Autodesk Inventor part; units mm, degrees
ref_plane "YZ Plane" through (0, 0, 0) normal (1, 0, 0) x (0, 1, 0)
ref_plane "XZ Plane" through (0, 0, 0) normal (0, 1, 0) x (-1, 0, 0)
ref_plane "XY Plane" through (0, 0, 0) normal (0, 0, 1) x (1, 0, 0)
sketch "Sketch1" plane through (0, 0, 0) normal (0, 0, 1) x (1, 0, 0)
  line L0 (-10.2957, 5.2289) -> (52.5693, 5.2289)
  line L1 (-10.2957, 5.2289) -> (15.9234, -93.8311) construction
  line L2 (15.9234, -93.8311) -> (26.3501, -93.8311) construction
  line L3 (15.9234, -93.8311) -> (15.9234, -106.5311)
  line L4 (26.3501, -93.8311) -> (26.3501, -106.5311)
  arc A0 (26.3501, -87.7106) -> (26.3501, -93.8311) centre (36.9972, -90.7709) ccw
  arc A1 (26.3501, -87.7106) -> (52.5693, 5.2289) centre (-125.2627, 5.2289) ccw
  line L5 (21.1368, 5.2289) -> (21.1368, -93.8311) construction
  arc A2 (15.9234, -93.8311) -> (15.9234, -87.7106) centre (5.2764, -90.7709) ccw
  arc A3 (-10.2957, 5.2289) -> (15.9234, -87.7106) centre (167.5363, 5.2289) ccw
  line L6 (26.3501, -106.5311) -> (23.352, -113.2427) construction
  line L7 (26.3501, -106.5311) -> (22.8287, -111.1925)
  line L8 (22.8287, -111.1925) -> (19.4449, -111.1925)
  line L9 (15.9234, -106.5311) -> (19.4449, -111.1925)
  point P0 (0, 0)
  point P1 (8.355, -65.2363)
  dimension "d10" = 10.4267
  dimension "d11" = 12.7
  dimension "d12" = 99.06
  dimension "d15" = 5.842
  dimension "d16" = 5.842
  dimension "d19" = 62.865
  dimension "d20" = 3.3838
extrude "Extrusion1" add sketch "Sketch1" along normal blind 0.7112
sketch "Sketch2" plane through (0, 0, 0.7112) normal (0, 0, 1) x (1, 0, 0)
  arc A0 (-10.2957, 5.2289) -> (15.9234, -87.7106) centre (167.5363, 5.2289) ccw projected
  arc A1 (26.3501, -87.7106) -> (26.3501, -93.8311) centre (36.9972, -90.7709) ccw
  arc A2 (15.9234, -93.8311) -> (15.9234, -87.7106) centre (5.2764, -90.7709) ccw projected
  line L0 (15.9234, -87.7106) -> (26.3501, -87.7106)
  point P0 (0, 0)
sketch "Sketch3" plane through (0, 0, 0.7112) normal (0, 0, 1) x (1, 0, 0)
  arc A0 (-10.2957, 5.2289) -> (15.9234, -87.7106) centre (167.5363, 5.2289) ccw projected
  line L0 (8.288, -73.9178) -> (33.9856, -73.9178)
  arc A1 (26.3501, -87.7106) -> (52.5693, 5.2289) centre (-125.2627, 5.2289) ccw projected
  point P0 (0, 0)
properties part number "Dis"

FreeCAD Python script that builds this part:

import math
import FreeCAD as App
import Part
import Sketcher
from FreeCAD import Vector
Q = App.Units.Quantity

doc = App.newDocument("Part")
body = doc.addObject("PartDesign::Body", "Body")

sketch1 = body.newObject("Sketcher::SketchObject", "Sketch")
sketch1.AttachmentSupport = (doc.getObject("XY_Plane"), [""])
sketch1.MapMode = "FlatFace"
sketch1.addGeometry(Part.LineSegment(Vector(52.5693, 5.2289, 0), Vector(-10.2957, 5.2289, 0)), False)
sketch1.addGeometry(Part.ArcOfCircle(Part.Circle(Vector(167.5363, 5.2289, 0), Vector(0, 0, 1), 177.832), math.radians(180), math.radians(211.508515)), False)
sketch1.addGeometry(Part.ArcOfCircle(Part.Circle(Vector(5.2764, -90.7709, 0), Vector(0, 0, 1), 11.078061), math.radians(-16.035905), math.radians(16.036402)), False)
sketch1.addGeometry(Part.LineSegment(Vector(15.9234, -93.8311, 0), Vector(15.9234, -106.5311, 0)), False)
sketch1.addGeometry(Part.LineSegment(Vector(15.9234, -106.5311, 0), Vector(19.4449, -111.1925, 0)), False)
sketch1.addGeometry(Part.LineSegment(Vector(19.4449, -111.1925, 0), Vector(22.8287, -111.1925, 0)), False)
sketch1.addGeometry(Part.LineSegment(Vector(22.8287, -111.1925, 0), Vector(26.3501, -106.5311, 0)), False)
sketch1.addGeometry(Part.LineSegment(Vector(26.3501, -106.5311, 0), Vector(26.3501, -93.8311, 0)), False)
sketch1.addGeometry(Part.ArcOfCircle(Part.Circle(Vector(36.9972, -90.7709, 0), Vector(0, 0, 1), 11.078185), math.radians(163.963741), math.radians(196.035762)), False)
sketch1.addGeometry(Part.ArcOfCircle(Part.Circle(Vector(-125.263684, 5.229331, 0), Vector(0, 0, 1), 177.832984), math.radians(-31.508484), math.radians(-0.000139)), False)
sketch1.addConstraint(Sketcher.Constraint("Coincident", 0, 2, 1, 1))
sketch1.addConstraint(Sketcher.Constraint("Coincident", 1, 2, 2, 2))
sketch1.addConstraint(Sketcher.Constraint("Coincident", 2, 1, 3, 1))
sketch1.addConstraint(Sketcher.Constraint("Coincident", 3, 2, 4, 1))
sketch1.addConstraint(Sketcher.Constraint("Coincident", 4, 2, 5, 1))
sketch1.addConstraint(Sketcher.Constraint("Coincident", 5, 2, 6, 1))
sketch1.addConstraint(Sketcher.Constraint("Coincident", 6, 2, 7, 1))
sketch1.addConstraint(Sketcher.Constraint("Coincident", 7, 2, 8, 2))
sketch1.addConstraint(Sketcher.Constraint("Coincident", 8, 1, 9, 1))
sketch1.addConstraint(Sketcher.Constraint("Coincident", 9, 2, 0, 1))
sketch1.addConstraint(Sketcher.Constraint("Horizontal", 0))
sketch1.addConstraint(Sketcher.Constraint("Vertical", 3))
sketch1.addConstraint(Sketcher.Constraint("Horizontal", 5))
sketch1.addConstraint(Sketcher.Constraint("Vertical", 7))
sketch1.addConstraint(Sketcher.Constraint("Equal", 2, 8))
sketch1.addConstraint(Sketcher.Constraint("Horizontal", 2, 3, 8, 3))
sketch1.addConstraint(Sketcher.Constraint("Horizontal", 1, 3, 0, 2))
sketch1.addConstraint(Sketcher.Constraint("Horizontal", 3, 2, 6, 2))
sketch1.addConstraint(Sketcher.Constraint("Horizontal", 2, 1, 7, 2))
sketch1.addConstraint(Sketcher.Constraint("Horizontal", 1, 2, 8, 1))
sketch1.addConstraint(Sketcher.Constraint("Vertical", 1, 2, 2, 1))
sketch1.addConstraint(Sketcher.Constraint("Equal", 4, 6))
sketch1.addConstraint(Sketcher.Constraint("DistanceY", 3, 2, 3, 1, Q("0.5 in")))
sketch1.addConstraint(Sketcher.Constraint("DistanceY", 2, 1, 0, 2, Q("3.9 in")))
sketch1.addConstraint(Sketcher.Constraint("Distance", 4, Q("0.23 in")))
sketch1.addConstraint(Sketcher.Constraint("DistanceX", 0, 2, 0, 1, Q("2.475 in")))
sketch1.addConstraint(Sketcher.Constraint("DistanceX", 5, 1, 5, 2, 3.3838))
sketch1.addConstraint(Sketcher.Constraint("Radius", 9, Q("7.0013 in")))
sketch1.addConstraint(Sketcher.Constraint("DistanceX", 3, 2, 6, 2, Q("0.4105 in")))
sketch1.addConstraint(Sketcher.Constraint("Radius", 1, 177.832))
sketch1.addConstraint(Sketcher.Constraint("Radius", 2, 11.078))
sketch1.addConstraint(Sketcher.Constraint("DistanceY", 2, 1, 9, 3, 99.0604))
sketch1.addConstraint(Sketcher.Constraint("DistanceX", -1, 1, 1, 2, Q("0.6269 in")))
sketch1.addConstraint(Sketcher.Constraint("DistanceY", -1, 1, 1, 3, 5.229))
pad1 = body.newObject("PartDesign::Pad", "Pad")
pad1.Profile = sketch1
pad1.Length = Q("0.028 in")

doc.recompute()
